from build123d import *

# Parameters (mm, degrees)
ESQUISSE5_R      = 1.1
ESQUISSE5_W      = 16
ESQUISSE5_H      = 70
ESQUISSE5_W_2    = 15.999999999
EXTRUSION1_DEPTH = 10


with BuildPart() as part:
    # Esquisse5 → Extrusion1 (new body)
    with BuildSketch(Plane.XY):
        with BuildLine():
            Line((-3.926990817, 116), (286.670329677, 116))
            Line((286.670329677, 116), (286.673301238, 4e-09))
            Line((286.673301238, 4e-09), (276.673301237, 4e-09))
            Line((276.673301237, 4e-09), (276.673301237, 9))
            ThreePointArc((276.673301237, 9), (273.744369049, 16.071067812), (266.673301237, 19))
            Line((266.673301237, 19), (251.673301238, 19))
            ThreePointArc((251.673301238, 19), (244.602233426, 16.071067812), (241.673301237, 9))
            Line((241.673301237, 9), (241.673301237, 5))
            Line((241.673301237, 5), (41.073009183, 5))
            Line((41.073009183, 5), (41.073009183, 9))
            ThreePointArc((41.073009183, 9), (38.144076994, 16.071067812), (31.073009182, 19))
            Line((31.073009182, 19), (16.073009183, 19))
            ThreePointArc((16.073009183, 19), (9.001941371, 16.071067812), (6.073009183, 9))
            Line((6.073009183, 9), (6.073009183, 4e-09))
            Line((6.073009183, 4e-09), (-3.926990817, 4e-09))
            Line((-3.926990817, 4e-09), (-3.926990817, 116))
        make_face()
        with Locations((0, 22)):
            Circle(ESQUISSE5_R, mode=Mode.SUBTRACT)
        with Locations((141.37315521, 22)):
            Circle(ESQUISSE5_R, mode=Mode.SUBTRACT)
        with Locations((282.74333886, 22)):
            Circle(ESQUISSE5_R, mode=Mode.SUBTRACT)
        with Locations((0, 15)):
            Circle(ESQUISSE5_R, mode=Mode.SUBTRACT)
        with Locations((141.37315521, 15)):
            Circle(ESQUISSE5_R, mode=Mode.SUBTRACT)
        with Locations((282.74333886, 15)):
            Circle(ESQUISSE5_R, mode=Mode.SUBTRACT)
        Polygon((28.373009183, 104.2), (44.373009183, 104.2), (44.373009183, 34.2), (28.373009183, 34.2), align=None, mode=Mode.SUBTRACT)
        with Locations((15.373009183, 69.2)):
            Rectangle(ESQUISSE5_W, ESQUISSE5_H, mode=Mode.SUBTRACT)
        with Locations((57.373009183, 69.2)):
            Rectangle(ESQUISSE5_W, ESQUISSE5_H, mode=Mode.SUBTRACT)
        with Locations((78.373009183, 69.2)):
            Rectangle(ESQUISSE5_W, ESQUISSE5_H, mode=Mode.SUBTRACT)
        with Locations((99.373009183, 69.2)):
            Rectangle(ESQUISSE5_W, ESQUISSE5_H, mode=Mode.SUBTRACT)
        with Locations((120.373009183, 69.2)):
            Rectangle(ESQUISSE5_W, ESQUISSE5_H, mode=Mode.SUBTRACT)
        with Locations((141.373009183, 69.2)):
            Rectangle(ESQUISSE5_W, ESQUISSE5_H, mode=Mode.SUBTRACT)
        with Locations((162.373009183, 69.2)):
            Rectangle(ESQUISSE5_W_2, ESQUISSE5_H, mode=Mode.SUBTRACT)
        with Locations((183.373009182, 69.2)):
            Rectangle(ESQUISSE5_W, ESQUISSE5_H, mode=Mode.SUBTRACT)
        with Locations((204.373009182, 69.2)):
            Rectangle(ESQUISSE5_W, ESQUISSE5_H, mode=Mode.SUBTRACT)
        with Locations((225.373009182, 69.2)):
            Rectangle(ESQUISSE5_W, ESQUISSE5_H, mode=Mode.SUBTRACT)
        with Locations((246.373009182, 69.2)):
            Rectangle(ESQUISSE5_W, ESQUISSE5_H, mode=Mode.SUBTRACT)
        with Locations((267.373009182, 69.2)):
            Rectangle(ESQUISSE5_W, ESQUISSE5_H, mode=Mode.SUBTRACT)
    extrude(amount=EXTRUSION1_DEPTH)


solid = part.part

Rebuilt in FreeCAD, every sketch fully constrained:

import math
import FreeCAD as App
import Part
import Sketcher

V = App.Vector

doc = App.newDocument("Part")
body = doc.addObject("PartDesign::Body", "Body")

sketch1 = body.newObject("Sketcher::SketchObject", "Sketch")
sketch1.AttachmentSupport = (doc.getObject("XY_Plane"), [""])
sketch1.MapMode = "FlatFace"
sketch1.addGeometry([
    Part.LineSegment(V(286.7, 116, 0), V(-3.9, 116, 0)),
    Part.LineSegment(V(-3.9, 116, 0), V(-3.9, 0, 0)),
    Part.LineSegment(V(-3.9, 0, 0), V(6.1, 0, 0)),
    Part.LineSegment(V(6.1, 0, 0), V(6.1, 9, 0)),
    Part.ArcOfCircle(Part.Circle(V(16.1, 9, 0), V(0, 0, 1), 10), math.radians(90), math.radians(180)),
    Part.LineSegment(V(16.1, 19, 0), V(31.1, 19, 0)),
    Part.ArcOfCircle(Part.Circle(V(31.1, 9, 0), V(0, 0, 1), 10), math.radians(0), math.radians(90)),
    Part.LineSegment(V(41.1, 9, 0), V(41.1, 5, 0)),
    Part.LineSegment(V(41.1, 5, 0), V(241.7, 5, 0)),
    Part.LineSegment(V(241.7, 5, 0), V(241.7, 9, 0)),
    Part.ArcOfCircle(Part.Circle(V(251.7, 9, 0), V(0, 0, 1), 10), math.radians(90), math.radians(180)),
    Part.LineSegment(V(251.7, 19, 0), V(266.7, 19, 0)),
    Part.ArcOfCircle(Part.Circle(V(266.7, 9, 0), V(0, 0, 1), 10), math.radians(0), math.radians(90)),
    Part.LineSegment(V(276.7, 9, 0), V(276.7, 0, 0)),
    Part.LineSegment(V(276.7, 0, 0), V(286.7, 0, 0)),
    Part.LineSegment(V(286.7, 0, 0), V(286.7, 116, 0)),
    Part.Circle(V(282.7, 15, 0), V(0, 0, 1), 1.1),
    Part.Circle(V(282.7, 22, 0), V(0, 0, 1), 1.1),
    Part.Circle(V(141.4, 15, 0), V(0, 0, 1), 1.1),
    Part.Circle(V(141.4, 22, 0), V(0, 0, 1), 1.1),
    Part.Circle(V(0, 15, 0), V(0, 0, 1), 1.1),
    Part.Circle(V(0, 22, 0), V(0, 0, 1), 1.1),
    Part.LineSegment(V(259.4, 34.2, 0), V(259.4, 104.2, 0)),
    Part.LineSegment(V(259.4, 104.2, 0), V(275.4, 104.2, 0)),
    Part.LineSegment(V(275.4, 104.2, 0), V(275.4, 34.2, 0)),
    Part.LineSegment(V(275.4, 34.2, 0), V(259.4, 34.2, 0)),
    Part.LineSegment(V(238.4, 34.2, 0), V(238.4, 104.2, 0)),
    Part.LineSegment(V(238.4, 104.2, 0), V(254.4, 104.2, 0)),
    Part.LineSegment(V(254.4, 104.2, 0), V(254.4, 34.2, 0)),
    Part.LineSegment(V(254.4, 34.2, 0), V(238.4, 34.2, 0)),
    Part.LineSegment(V(217.4, 34.2, 0), V(217.4, 104.2, 0)),
    Part.LineSegment(V(217.4, 104.2, 0), V(233.4, 104.2, 0)),
    Part.LineSegment(V(233.4, 104.2, 0), V(233.4, 34.2, 0)),
    Part.LineSegment(V(233.4, 34.2, 0), V(217.4, 34.2, 0)),
    Part.LineSegment(V(196.4, 34.2, 0), V(196.4, 104.2, 0)),
    Part.LineSegment(V(196.4, 104.2, 0), V(212.4, 104.2, 0)),
    Part.LineSegment(V(212.4, 104.2, 0), V(212.4, 34.2, 0)),
    Part.LineSegment(V(212.4, 34.2, 0), V(196.4, 34.2, 0)),
    Part.LineSegment(V(175.4, 34.2, 0), V(175.4, 104.2, 0)),
    Part.LineSegment(V(175.4, 104.2, 0), V(191.4, 104.2, 0)),
    Part.LineSegment(V(191.4, 104.2, 0), V(191.4, 34.2, 0)),
    Part.LineSegment(V(191.4, 34.2, 0), V(175.4, 34.2, 0)),
    Part.LineSegment(V(154.4, 34.2, 0), V(154.4, 104.2, 0)),
    Part.LineSegment(V(154.4, 104.2, 0), V(170.4, 104.2, 0)),
    Part.LineSegment(V(170.4, 104.2, 0), V(170.4, 34.2, 0)),
    Part.LineSegment(V(170.4, 34.2, 0), V(154.4, 34.2, 0)),
    Part.LineSegment(V(133.4, 34.2, 0), V(133.4, 104.2, 0)),
    Part.LineSegment(V(133.4, 104.2, 0), V(149.4, 104.2, 0)),
    Part.LineSegment(V(149.4, 104.2, 0), V(149.4, 34.2, 0)),
    Part.LineSegment(V(149.4, 34.2, 0), V(133.4, 34.2, 0)),
    Part.LineSegment(V(112.4, 34.2, 0), V(112.4, 104.2, 0)),
    Part.LineSegment(V(112.4, 104.2, 0), V(128.4, 104.2, 0)),
    Part.LineSegment(V(128.4, 104.2, 0), V(128.4, 34.2, 0)),
    Part.LineSegment(V(128.4, 34.2, 0), V(112.4, 34.2, 0)),
    Part.LineSegment(V(91.4, 34.2, 0), V(91.4, 104.2, 0)),
    Part.LineSegment(V(91.4, 104.2, 0), V(107.4, 104.2, 0)),
    Part.LineSegment(V(107.4, 104.2, 0), V(107.4, 34.2, 0)),
    Part.LineSegment(V(107.4, 34.2, 0), V(91.4, 34.2, 0)),
    Part.LineSegment(V(70.4, 34.2, 0), V(70.4, 104.2, 0)),
    Part.LineSegment(V(70.4, 104.2, 0), V(86.4, 104.2, 0)),
    Part.LineSegment(V(86.4, 104.2, 0), V(86.4, 34.2, 0)),
    Part.LineSegment(V(86.4, 34.2, 0), V(70.4, 34.2, 0)),
    Part.LineSegment(V(49.4, 34.2, 0), V(49.4, 104.2, 0)),
    Part.LineSegment(V(49.4, 104.2, 0), V(65.4, 104.2, 0)),
    Part.LineSegment(V(65.4, 104.2, 0), V(65.4, 34.2, 0)),
    Part.LineSegment(V(65.4, 34.2, 0), V(49.4, 34.2, 0)),
    Part.LineSegment(V(28.4, 104.2, 0), V(44.4, 104.2, 0)),
    Part.LineSegment(V(44.4, 104.2, 0), V(44.4, 34.2, 0)),
    Part.LineSegment(V(44.4, 34.2, 0), V(28.4, 34.2, 0)),
    Part.LineSegment(V(28.4, 34.2, 0), V(28.4, 104.2, 0)),
    Part.LineSegment(V(7.4, 34.2, 0), V(7.4, 104.2, 0)),
    Part.LineSegment(V(7.4, 104.2, 0), V(23.4, 104.2, 0)),
    Part.LineSegment(V(23.4, 104.2, 0), V(23.4, 34.2, 0)),
    Part.LineSegment(V(23.4, 34.2, 0), V(7.4, 34.2, 0)),
], False)
sketch1.addConstraint([
    Sketcher.Constraint("Coincident", 0, 2, 1, 1),
    Sketcher.Constraint("Coincident", 1, 2, 2, 1),
    Sketcher.Constraint("Coincident", 2, 2, 3, 1),
    Sketcher.Constraint("Tangent", 3, 2, 4, 2),
    Sketcher.Constraint("Tangent", 4, 1, 5, 1),
    Sketcher.Constraint("Tangent", 5, 2, 6, 2),
    Sketcher.Constraint("Tangent", 6, 1, 7, 1),
    Sketcher.Constraint("Coincident", 7, 2, 8, 1),
    Sketcher.Constraint("Coincident", 8, 2, 9, 1),
    Sketcher.Constraint("Tangent", 9, 2, 10, 2),
    Sketcher.Constraint("Tangent", 10, 1, 11, 1),
    Sketcher.Constraint("Tangent", 11, 2, 12, 2),
    Sketcher.Constraint("Tangent", 12, 1, 13, 1),
    Sketcher.Constraint("Coincident", 13, 2, 14, 1),
    Sketcher.Constraint("Coincident", 14, 2, 15, 1),
    Sketcher.Constraint("Coincident", 15, 2, 0, 1),
    Sketcher.Constraint("Coincident", 22, 2, 23, 1),
    Sketcher.Constraint("Coincident", 23, 2, 24, 1),
    Sketcher.Constraint("Coincident", 24, 2, 25, 1),
    Sketcher.Constraint("Coincident", 25, 2, 22, 1),
    Sketcher.Constraint("Coincident", 26, 2, 27, 1),
    Sketcher.Constraint("Coincident", 27, 2, 28, 1),
    Sketcher.Constraint("Coincident", 28, 2, 29, 1),
    Sketcher.Constraint("Coincident", 29, 2, 26, 1),
    Sketcher.Constraint("Coincident", 30, 2, 31, 1),
    Sketcher.Constraint("Coincident", 31, 2, 32, 1),
    Sketcher.Constraint("Coincident", 32, 2, 33, 1),
    Sketcher.Constraint("Coincident", 33, 2, 30, 1),
    Sketcher.Constraint("Coincident", 34, 2, 35, 1),
    Sketcher.Constraint("Coincident", 35, 2, 36, 1),
    Sketcher.Constraint("Coincident", 36, 2, 37, 1),
    Sketcher.Constraint("Coincident", 37, 2, 34, 1),
    Sketcher.Constraint("Coincident", 38, 2, 39, 1),
    Sketcher.Constraint("Coincident", 39, 2, 40, 1),
    Sketcher.Constraint("Coincident", 40, 2, 41, 1),
    Sketcher.Constraint("Coincident", 41, 2, 38, 1),
    Sketcher.Constraint("Coincident", 42, 2, 43, 1),
    Sketcher.Constraint("Coincident", 43, 2, 44, 1),
    Sketcher.Constraint("Coincident", 44, 2, 45, 1),
    Sketcher.Constraint("Coincident", 45, 2, 42, 1),
    Sketcher.Constraint("Coincident", 46, 2, 47, 1),
    Sketcher.Constraint("Coincident", 47, 2, 48, 1),
    Sketcher.Constraint("Coincident", 48, 2, 49, 1),
    Sketcher.Constraint("Coincident", 49, 2, 46, 1),
    Sketcher.Constraint("Coincident", 50, 2, 51, 1),
    Sketcher.Constraint("Coincident", 51, 2, 52, 1),
    Sketcher.Constraint("Coincident", 52, 2, 53, 1),
    Sketcher.Constraint("Coincident", 53, 2, 50, 1),
    Sketcher.Constraint("Coincident", 54, 2, 55, 1),
    Sketcher.Constraint("Coincident", 55, 2, 56, 1),
    Sketcher.Constraint("Coincident", 56, 2, 57, 1),
    Sketcher.Constraint("Coincident", 57, 2, 54, 1),
    Sketcher.Constraint("Coincident", 58, 2, 59, 1),
    Sketcher.Constraint("Coincident", 59, 2, 60, 1),
    Sketcher.Constraint("Coincident", 60, 2, 61, 1),
    Sketcher.Constraint("Coincident", 61, 2, 58, 1),
    Sketcher.Constraint("Coincident", 62, 2, 63, 1),
    Sketcher.Constraint("Coincident", 63, 2, 64, 1),
    Sketcher.Constraint("Coincident", 64, 2, 65, 1),
    Sketcher.Constraint("Coincident", 65, 2, 62, 1),
    Sketcher.Constraint("Coincident", 66, 2, 67, 1),
    Sketcher.Constraint("Coincident", 67, 2, 68, 1),
    Sketcher.Constraint("Coincident", 68, 2, 69, 1),
    Sketcher.Constraint("Coincident", 69, 2, 66, 1),
    Sketcher.Constraint("Coincident", 70, 2, 71, 1),
    Sketcher.Constraint("Coincident", 71, 2, 72, 1),
    Sketcher.Constraint("Coincident", 72, 2, 73, 1),
    Sketcher.Constraint("Coincident", 73, 2, 70, 1),
    Sketcher.Constraint("Horizontal", 0),
    Sketcher.Constraint("Vertical", 1),
    Sketcher.Constraint("Horizontal", 2),
    Sketcher.Constraint("Vertical", 3),
    Sketcher.Constraint("Horizontal", 5),
    Sketcher.Constraint("Vertical", 7),
    Sketcher.Constraint("Horizontal", 8),
    Sketcher.Constraint("Vertical", 9),
    Sketcher.Constraint("Horizontal", 11),
    Sketcher.Constraint("Vertical", 13),
    Sketcher.Constraint("Horizontal", 14),
    Sketcher.Constraint("Vertical", 22),
    Sketcher.Constraint("Horizontal", 23),
    Sketcher.Constraint("Vertical", 24),
    Sketcher.Constraint("Horizontal", 25),
    Sketcher.Constraint("Vertical", 26),
    Sketcher.Constraint("Horizontal", 27),
    Sketcher.Constraint("Vertical", 28),
    Sketcher.Constraint("Horizontal", 29),
    Sketcher.Constraint("Vertical", 30),
    Sketcher.Constraint("Horizontal", 31),
    Sketcher.Constraint("Vertical", 32),
    Sketcher.Constraint("Horizontal", 33),
    Sketcher.Constraint("Vertical", 34),
    Sketcher.Constraint("Horizontal", 35),
    Sketcher.Constraint("Vertical", 36),
    Sketcher.Constraint("Horizontal", 37),
    Sketcher.Constraint("Vertical", 38),
    Sketcher.Constraint("Horizontal", 39),
    Sketcher.Constraint("Vertical", 40),
    Sketcher.Constraint("Horizontal", 41),
    Sketcher.Constraint("Vertical", 42),
    Sketcher.Constraint("Horizontal", 43),
    Sketcher.Constraint("Vertical", 44),
    Sketcher.Constraint("Horizontal", 45),
    Sketcher.Constraint("Vertical", 46),
    Sketcher.Constraint("Horizontal", 47),
    Sketcher.Constraint("Vertical", 48),
    Sketcher.Constraint("Horizontal", 49),
    Sketcher.Constraint("Vertical", 50),
    Sketcher.Constraint("Horizontal", 51),
    Sketcher.Constraint("Vertical", 52),
    Sketcher.Constraint("Horizontal", 53),
    Sketcher.Constraint("Vertical", 54),
    Sketcher.Constraint("Horizontal", 55),
    Sketcher.Constraint("Vertical", 56),
    Sketcher.Constraint("Horizontal", 57),
    Sketcher.Constraint("Vertical", 58),
    Sketcher.Constraint("Horizontal", 59),
    Sketcher.Constraint("Vertical", 60),
    Sketcher.Constraint("Horizontal", 61),
    Sketcher.Constraint("Vertical", 62),
    Sketcher.Constraint("Horizontal", 63),
    Sketcher.Constraint("Vertical", 64),
    Sketcher.Constraint("Horizontal", 65),
    Sketcher.Constraint("Horizontal", 66),
    Sketcher.Constraint("Vertical", 67),
    Sketcher.Constraint("Horizontal", 68),
    Sketcher.Constraint("Vertical", 69),
    Sketcher.Constraint("Vertical", 70),
    Sketcher.Constraint("Horizontal", 71),
    Sketcher.Constraint("Vertical", 72),
    Sketcher.Constraint("Horizontal", 73),
    Sketcher.Constraint("Equal", 4, 6),
    Sketcher.Constraint("Equal", 6, 10),
    Sketcher.Constraint("Equal", 10, 12),
    Sketcher.Constraint("Equal", 16, 17),
    Sketcher.Constraint("Equal", 17, 18),
    Sketcher.Constraint("Equal", 18, 19),
    Sketcher.Constraint("Equal", 19, 20),
    Sketcher.Constraint("Equal", 20, 21),
    Sketcher.Constraint("PointOnObject", 20, 3, -2),
    Sketcher.Constraint("PointOnObject", 21, 3, -2),
    Sketcher.Constraint("PointOnObject", 1, 2, -1),
    Sketcher.Constraint("PointOnObject", 13, 2, -1),
    Sketcher.Constraint("Horizontal", 6, 3, 10, 3),
    Sketcher.Constraint("Horizontal", 16, 3, 18, 3),
    Sketcher.Constraint("Horizontal", 17, 3, 19, 3),
    Sketcher.Constraint("Horizontal", 18, 3, 20, 3),
    Sketcher.Constraint("Horizontal", 19, 3, 21, 3),
    Sketcher.Constraint("Horizontal", 23, 2, 26, 2),
    Sketcher.Constraint("Horizontal", 25, 2, 28, 2),
    Sketcher.Constraint("Horizontal", 27, 2, 30, 2),
    Sketcher.Constraint("Horizontal", 29, 2, 32, 2),
    Sketcher.Constraint("Horizontal", 31, 2, 34, 2),
    Sketcher.Constraint("Horizontal", 33, 2, 36, 2),
    Sketcher.Constraint("Horizontal", 35, 2, 38, 2),
    Sketcher.Constraint("Horizontal", 37, 2, 40, 2),
    Sketcher.Constraint("Horizontal", 39, 2, 42, 2),
    Sketcher.Constraint("Horizontal", 41, 2, 44, 2),
    Sketcher.Constraint("Horizontal", 43, 2, 46, 2),
    Sketcher.Constraint("Horizontal", 45, 2, 48, 2),
    Sketcher.Constraint("Horizontal", 47, 2, 50, 2),
    Sketcher.Constraint("Horizontal", 49, 2, 52, 2),
    Sketcher.Constraint("Horizontal", 51, 2, 54, 2),
    Sketcher.Constraint("Horizontal", 53, 2, 56, 2),
    Sketcher.Constraint("Horizontal", 55, 2, 58, 2),
    Sketcher.Constraint("Horizontal", 57, 2, 60, 2),
    Sketcher.Constraint("Horizontal", 59, 2, 62, 2),
    Sketcher.Constraint("Horizontal", 61, 2, 64, 2),
    Sketcher.Constraint("Horizontal", 63, 2, 66, 2),
    Sketcher.Constraint("Horizontal", 65, 2, 67, 2),
    Sketcher.Constraint("Horizontal", 69, 2, 70, 2),
    Sketcher.Constraint("Horizontal", 68, 2, 72, 2),
    Sketcher.Constraint("Vertical", 16, 3, 17, 3),
    Sketcher.Constraint("Vertical", 18, 3, 19, 3),
    Sketcher.Constraint("Equal", 5, 11),
    Sketcher.Constraint("Equal", 2, 14),
    Sketcher.Constraint("Equal", 25, 27),
    Sketcher.Constraint("Equal", 29, 31),
    Sketcher.Constraint("Equal", 33, 35),
    Sketcher.Constraint("Equal", 37, 39),
    Sketcher.Constraint("Equal", 41, 43),
    Sketcher.Constraint("Equal", 45, 47),
    Sketcher.Constraint("Equal", 49, 51),
    Sketcher.Constraint("Equal", 53, 55),
    Sketcher.Constraint("Equal", 57, 59),
    Sketcher.Constraint("Equal", 61, 63),
    Sketcher.Constraint("Equal", 65, 66),
    Sketcher.Constraint("Equal", 68, 71),
    Sketcher.Constraint("Radius", 4, 10.0),
    Sketcher.Constraint("Diameter", 16, 2.2),
    Sketcher.Constraint("DistanceX", 2, 1, 2, 2, 10.0),
    Sketcher.Constraint("DistanceX", 5, 1, 5, 2, 15.0),
    Sketcher.Constraint("DistanceX", 23, 1, 23, 2, 16.0),
    Sketcher.Constraint("DistanceY", 1, 2, 1, 1, 116.0),
    Sketcher.Constraint("DistanceY", 3, 1, 3, 2, 9.0),
    Sketcher.Constraint("DistanceY", 7, 2, 7, 1, 4.0),
    Sketcher.Constraint("DistanceY", 22, 1, 22, 2, 70.0),
    Sketcher.Constraint("DistanceY", -1, 1, 16, 3, 15.0),
    Sketcher.Constraint("DistanceY", -1, 1, 17, 3, 22.0),
    Sketcher.Constraint("DistanceY", -1, 1, 22, 2, 104.2),
    Sketcher.Constraint("DistanceX", 0, 2, 0, 1, 290.59732),
    Sketcher.Constraint("DistanceX", -1, 1, 10, 3, 251.673301),
    Sketcher.Constraint("DistanceX", 8, 1, 8, 2, 200.600292),
    Sketcher.Constraint("DistanceX", -1, 1, 16, 3, 282.743339),
    Sketcher.Constraint("DistanceX", -1, 1, 22, 2, 259.373009),
    Sketcher.Constraint("DistanceX", -1, 1, 26, 2, 238.373009),
    Sketcher.Constraint("DistanceX", -1, 1, 30, 2, 217.373009),
    Sketcher.Constraint("DistanceX", -1, 1, 34, 2, 196.373009),
    Sketcher.Constraint("DistanceX", -1, 1, 38, 2, 175.373009),
    Sketcher.Constraint("DistanceX", -1, 1, 42, 2, 154.373009),
    Sketcher.Constraint("DistanceX", -1, 1, 46, 2, 133.373009),
    Sketcher.Constraint("DistanceX", -1, 1, 50, 2, 112.373009),
    Sketcher.Constraint("DistanceX", -1, 1, 54, 2, 91.373009),
    Sketcher.Constraint("DistanceX", -1, 1, 58, 2, 70.373009),
    Sketcher.Constraint("DistanceX", -1, 1, 62, 2, 49.373009),
    Sketcher.Constraint("DistanceX", -1, 1, 66, 2, 44.373009),
    Sketcher.Constraint("DistanceX", -1, 1, 70, 2, 7.373009),
    Sketcher.Constraint("DistanceX", -1, 1, 18, 3, 141.373155),
])
pad1 = body.newObject("PartDesign::Pad", "Pad")
pad1.Profile = sketch1
pad1.Length = 10

doc.recompute()
